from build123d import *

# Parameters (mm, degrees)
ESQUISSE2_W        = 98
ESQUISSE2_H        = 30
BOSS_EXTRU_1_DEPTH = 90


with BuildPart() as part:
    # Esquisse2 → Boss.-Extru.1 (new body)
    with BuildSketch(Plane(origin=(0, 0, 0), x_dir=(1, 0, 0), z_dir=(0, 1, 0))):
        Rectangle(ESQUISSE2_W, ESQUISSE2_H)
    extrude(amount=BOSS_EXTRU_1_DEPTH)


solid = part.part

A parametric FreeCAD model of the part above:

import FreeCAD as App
import Part
import Sketcher

V = App.Vector
Q = App.Units.Quantity

doc = App.newDocument("Part")
params = doc.addObject("Spreadsheet::Sheet", "Params")
for row, (alias, value) in enumerate([
    ("sketch1_width", "98 mm"),
    ("sketch1_height", "30 mm"),
    ("pad1_length", "90 mm"),
], start=1):
    params.set(f"A{row}", alias)
    params.set(f"B{row}", "=" + value)
    params.setAlias(f"B{row}", alias)

body = doc.addObject("PartDesign::Body", "Body")

# Sketch on XZ plane
sketch1 = body.newObject("Sketcher::SketchObject", "Sketch")
sketch1.AttachmentSupport = (doc.getObject("XZ_Plane"), [""])
sketch1.MapMode = "FlatFace"
sketch1.addGeometry([
    Part.LineSegment(V(-49, -15, 0), V(-49, 15, 0)),
    Part.LineSegment(V(-49, 15, 0), V(49, 15, 0)),
    Part.LineSegment(V(49, 15, 0), V(49, -15, 0)),
    Part.LineSegment(V(49, -15, 0), V(-49, -15, 0)),
], False)
sketch1.addConstraint([
    Sketcher.Constraint("Coincident", 0, 2, 1, 1),
    Sketcher.Constraint("Coincident", 1, 2, 2, 1),
    Sketcher.Constraint("Coincident", 2, 2, 3, 1),
    Sketcher.Constraint("Coincident", 3, 2, 0, 1),
    Sketcher.Constraint("Vertical", 0),
    Sketcher.Constraint("Horizontal", 1),
    Sketcher.Constraint("Vertical", 2),
    Sketcher.Constraint("Horizontal", 3),
    Sketcher.Constraint("Symmetric", 0, 2, 2, 2, -1, 1),
    Sketcher.Constraint("DistanceX", 1, 1, 1, 2, Q("98 mm")),
    Sketcher.Constraint("DistanceY", 0, 1, 0, 2, Q("30 mm")),
])
sketch1.setExpression("Constraints[9]", "Params.sketch1_width")
sketch1.setExpression("Constraints[10]", "Params.sketch1_height")
pad1 = body.newObject("PartDesign::Pad", "Pad")
pad1.Profile = sketch1
pad1.setExpression("Length", "Params.pad1_length")
pad1.Reversed = True

doc.recompute()
